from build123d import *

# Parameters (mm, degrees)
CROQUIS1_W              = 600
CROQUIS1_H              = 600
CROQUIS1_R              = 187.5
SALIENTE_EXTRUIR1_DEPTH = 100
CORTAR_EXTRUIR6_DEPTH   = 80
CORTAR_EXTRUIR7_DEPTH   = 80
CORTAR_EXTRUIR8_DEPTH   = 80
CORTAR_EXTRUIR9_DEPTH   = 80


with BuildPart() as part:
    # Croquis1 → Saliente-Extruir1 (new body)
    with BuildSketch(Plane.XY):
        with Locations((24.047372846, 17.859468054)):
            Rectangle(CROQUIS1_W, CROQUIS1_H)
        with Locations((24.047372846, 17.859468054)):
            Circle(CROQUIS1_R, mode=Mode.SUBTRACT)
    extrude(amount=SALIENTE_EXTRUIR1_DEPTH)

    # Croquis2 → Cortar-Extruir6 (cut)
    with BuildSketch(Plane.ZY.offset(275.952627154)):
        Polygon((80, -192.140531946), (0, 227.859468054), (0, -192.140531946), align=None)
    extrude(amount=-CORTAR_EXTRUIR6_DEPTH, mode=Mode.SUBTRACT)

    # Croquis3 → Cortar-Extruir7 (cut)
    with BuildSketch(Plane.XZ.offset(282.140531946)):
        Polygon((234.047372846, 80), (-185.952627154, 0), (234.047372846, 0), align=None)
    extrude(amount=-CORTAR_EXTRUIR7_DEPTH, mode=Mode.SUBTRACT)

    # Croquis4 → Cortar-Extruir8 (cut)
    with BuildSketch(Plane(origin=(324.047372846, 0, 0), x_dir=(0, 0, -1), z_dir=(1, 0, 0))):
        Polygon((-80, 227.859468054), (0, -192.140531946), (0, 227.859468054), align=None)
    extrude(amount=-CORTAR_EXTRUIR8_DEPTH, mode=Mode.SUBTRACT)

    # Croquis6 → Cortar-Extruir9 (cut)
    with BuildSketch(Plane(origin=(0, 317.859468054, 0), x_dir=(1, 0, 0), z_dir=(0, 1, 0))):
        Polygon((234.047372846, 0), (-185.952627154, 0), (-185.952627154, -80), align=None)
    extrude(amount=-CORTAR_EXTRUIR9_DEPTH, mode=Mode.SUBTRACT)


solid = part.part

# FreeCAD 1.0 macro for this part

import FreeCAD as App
import Part
import Sketcher
from FreeCAD import Vector

doc = App.newDocument("Part")
params = doc.addObject("Spreadsheet::Sheet", "Params")
for row, (alias, value) in enumerate([
    ("sketch1_diameter", "375 mm"),
    ("sketch1_width", "600 mm"),
    ("pad1_length", "100 mm"),
    ("sketch2_width", "420 mm"),
    ("sketch2_height", "80 mm"),
    ("pocket1_length", "80 mm"),
    ("sketch3_width", "420 mm"),
    ("sketch3_height", "80 mm"),
    ("pocket2_length", "80 mm"),
    ("sketch4_width", "420 mm"),
    ("sketch4_height", "80 mm"),
    ("pocket3_length", "80 mm"),
    ("sketch5_width", "420 mm"),
    ("sketch5_height", "80 mm"),
    ("pocket4_length", "80 mm"),
], start=1):
    params.set(f"A{row}", alias)
    params.set(f"B{row}", "=" + value)
    params.setAlias(f"B{row}", alias)

body = doc.addObject("PartDesign::Body", "Body")

# Sketch on XY plane
sketch1 = doc.addObject("Sketcher::SketchObject", "Sketch")
body.addObject(sketch1)
sketch1.AttachmentSupport = (doc.XY_Plane, [""])
sketch1.MapMode = "FlatFace"
sketch1.addGeometry([
    Part.LineSegment(Vector(-275.952627, 317.859468, 0), Vector(-275.952627, -282.140532, 0)),  # 0
    Part.LineSegment(Vector(-275.952627, -282.140532, 0), Vector(324.047373, -282.140532, 0)),  # 1
    Part.LineSegment(Vector(324.047373, -282.140532, 0), Vector(324.047373, 317.859468, 0)),  # 2
    Part.LineSegment(Vector(324.047373, 317.859468, 0), Vector(-275.952627, 317.859468, 0)),  # 3
    Part.Circle(Vector(24.047373, 17.859468, 0), Vector(0, 0, 1), 187.5),  # 4
], False)
sketch1.addConstraint([
    Sketcher.Constraint("Coincident", 0, 2, 1, 1),
    Sketcher.Constraint("Coincident", 1, 2, 2, 1),
    Sketcher.Constraint("Coincident", 2, 2, 3, 1),
    Sketcher.Constraint("Coincident", 3, 2, 0, 1),
    Sketcher.Constraint("Vertical", 0),
    Sketcher.Constraint("Horizontal", 1),
    Sketcher.Constraint("Vertical", 2),
    Sketcher.Constraint("Horizontal", 3),
    Sketcher.Constraint("Equal", 3, 0),
    Sketcher.Constraint("Diameter", 4, 375.0),
    Sketcher.Constraint("DistanceX", 1, 1, 1, 2, 600.0),
    Sketcher.Constraint("DistanceX", 0, 2, 4, 3, 300.0),
    Sketcher.Constraint("DistanceY", 0, 2, 4, 3, 300.0),
    Sketcher.Constraint("DistanceY", -1, 1, 4, 3, 17.859468),
    Sketcher.Constraint("DistanceX", -1, 1, 4, 3, 24.047373),
])
sketch1.setExpression("Constraints[9]", "Params.sketch1_diameter")
sketch1.setExpression("Constraints[10]", "Params.sketch1_width")
pad1 = doc.addObject("PartDesign::Pad", "Pad")
body.addObject(pad1)
pad1.Profile = sketch1
pad1.setExpression("Length", "Params.pad1_length")

# Sketch on YZ plane
sketch2 = doc.addObject("Sketcher::SketchObject", "Sketch001")
body.addObject(sketch2)
sketch2.AttachmentSupport = (doc.YZ_Plane, [""])
sketch2.MapMode = "FlatFace"
sketch2.AttachmentOffset = App.Placement(Vector(0, 0, -275.952627), App.Rotation())
sketch2.addGeometry([
    Part.LineSegment(Vector(-192.140532, 80, 0), Vector(227.859468, 0, 0)),
    Part.LineSegment(Vector(227.859468, 0, 0), Vector(-192.140532, 0, 0)),
    Part.LineSegment(Vector(-192.140532, 0, 0), Vector(-192.140532, 80, 0)),
], False)
sketch2.addConstraint([
    Sketcher.Constraint("Coincident", 0, 2, 1, 1),
    Sketcher.Constraint("Coincident", 1, 2, 2, 1),
    Sketcher.Constraint("Coincident", 2, 2, 0, 1),
    Sketcher.Constraint("Horizontal", 1),
    Sketcher.Constraint("Vertical", 2),
    Sketcher.Constraint("PointOnObject", 0, 2, -1),
    Sketcher.Constraint("DistanceX", 1, 2, 1, 1, 420.0),
    Sketcher.Constraint("DistanceY", 2, 1, 2, 2, 80.0),
    Sketcher.Constraint("DistanceX", -1, 1, 0, 2, 227.859468),
])
sketch2.setExpression("Constraints[6]", "Params.sketch2_width")
sketch2.setExpression("Constraints[7]", "Params.sketch2_height")
pocket1 = doc.addObject("PartDesign::Pocket", "Pocket")
body.addObject(pocket1)
pocket1.Profile = sketch2
pocket1.setExpression("Length", "Params.pocket1_length")
pocket1.Reversed = True

# Sketch on XZ plane
sketch3 = doc.addObject("Sketcher::SketchObject", "Sketch002")
body.addObject(sketch3)
sketch3.AttachmentSupport = (doc.XZ_Plane, [""])
sketch3.MapMode = "FlatFace"
sketch3.AttachmentOffset = App.Placement(Vector(0, 0, 282.140532), App.Rotation())
sketch3.addGeometry([
    Part.LineSegment(Vector(234.047373, 80, 0), Vector(-185.952627, 0, 0)),
    Part.LineSegment(Vector(-185.952627, 0, 0), Vector(234.047373, 0, 0)),
    Part.LineSegment(Vector(234.047373, 0, 0), Vector(234.047373, 80, 0)),
], False)
sketch3.addConstraint([
    Sketcher.Constraint("Coincident", 0, 2, 1, 1),
    Sketcher.Constraint("Coincident", 1, 2, 2, 1),
    Sketcher.Constraint("Coincident", 2, 2, 0, 1),
    Sketcher.Constraint("Horizontal", 1),
    Sketcher.Constraint("Vertical", 2),
    Sketcher.Constraint("PointOnObject", 0, 2, -1),
    Sketcher.Constraint("DistanceX", 1, 1, 1, 2, 420.0),
    Sketcher.Constraint("DistanceY", 2, 1, 2, 2, 80.0),
    Sketcher.Constraint("DistanceX", 0, 2, -1, 1, 185.952627),
])
sketch3.setExpression("Constraints[6]", "Params.sketch3_width")
sketch3.setExpression("Constraints[7]", "Params.sketch3_height")
pocket2 = doc.addObject("PartDesign::Pocket", "Pocket001")
body.addObject(pocket2)
pocket2.Profile = sketch3
pocket2.setExpression("Length", "Params.pocket2_length")

# Sketch on YZ plane
sketch4 = doc.addObject("Sketcher::SketchObject", "Sketch003")
body.addObject(sketch4)
sketch4.AttachmentSupport = (doc.YZ_Plane, [""])
sketch4.MapMode = "FlatFace"
sketch4.AttachmentOffset = App.Placement(Vector(0, 0, 324.047373), App.Rotation())
sketch4.addGeometry([
    Part.LineSegment(Vector(227.859468, 80, 0), Vector(-192.140532, 0, 0)),
    Part.LineSegment(Vector(-192.140532, 0, 0), Vector(227.859468, 0, 0)),
    Part.LineSegment(Vector(227.859468, 0, 0), Vector(227.859468, 80, 0)),
], False)
sketch4.addConstraint([
    Sketcher.Constraint("Coincident", 0, 2, 1, 1),
    Sketcher.Constraint("Coincident", 1, 2, 2, 1),
    Sketcher.Constraint("Coincident", 2, 2, 0, 1),
    Sketcher.Constraint("Horizontal", 1),
    Sketcher.Constraint("Vertical", 2),
    Sketcher.Constraint("PointOnObject", 0, 2, -1),
    Sketcher.Constraint("DistanceX", 1, 1, 1, 2, 420.0),
    Sketcher.Constraint("DistanceY", 2, 1, 2, 2, 80.0),
    Sketcher.Constraint("DistanceX", 0, 2, -1, 1, 192.140532),
])
sketch4.setExpression("Constraints[6]", "Params.sketch4_width")
sketch4.setExpression("Constraints[7]", "Params.sketch4_height")
pocket3 = doc.addObject("PartDesign::Pocket", "Pocket002")
body.addObject(pocket3)
pocket3.Profile = sketch4
pocket3.setExpression("Length", "Params.pocket3_length")

# Sketch on XZ plane
sketch5 = doc.addObject("Sketcher::SketchObject", "Sketch004")
body.addObject(sketch5)
sketch5.AttachmentSupport = (doc.XZ_Plane, [""])
sketch5.MapMode = "FlatFace"
sketch5.AttachmentOffset = App.Placement(Vector(0, 0, -317.859468), App.Rotation())
sketch5.addGeometry([
    Part.LineSegment(Vector(234.047373, 0, 0), Vector(-185.952627, 0, 0)),
    Part.LineSegment(Vector(-185.952627, 0, 0), Vector(-185.952627, 80, 0)),
    Part.LineSegment(Vector(-185.952627, 80, 0), Vector(234.047373, 0, 0)),
], False)
sketch5.addConstraint([
    Sketcher.Constraint("Coincident", 0, 2, 1, 1),
    Sketcher.Constraint("Coincident", 1, 2, 2, 1),
    Sketcher.Constraint("Coincident", 2, 2, 0, 1),
    Sketcher.Constraint("Horizontal", 0),
    Sketcher.Constraint("Vertical", 1),
    Sketcher.Constraint("PointOnObject", 0, 2, -1),
    Sketcher.Constraint("DistanceX", 0, 2, 0, 1, 420.0),
    Sketcher.Constraint("DistanceY", 1, 1, 1, 2, 80.0),
    Sketcher.Constraint("DistanceX", 0, 2, -1, 1, 185.952627),
])
sketch5.setExpression("Constraints[6]", "Params.sketch5_width")
sketch5.setExpression("Constraints[7]", "Params.sketch5_height")
pocket4 = doc.addObject("PartDesign::Pocket", "Pocket003")
body.addObject(pocket4)
pocket4.Profile = sketch5
pocket4.setExpression("Length", "Params.pocket4_length")
pocket4.Reversed = True

doc.recompute()
